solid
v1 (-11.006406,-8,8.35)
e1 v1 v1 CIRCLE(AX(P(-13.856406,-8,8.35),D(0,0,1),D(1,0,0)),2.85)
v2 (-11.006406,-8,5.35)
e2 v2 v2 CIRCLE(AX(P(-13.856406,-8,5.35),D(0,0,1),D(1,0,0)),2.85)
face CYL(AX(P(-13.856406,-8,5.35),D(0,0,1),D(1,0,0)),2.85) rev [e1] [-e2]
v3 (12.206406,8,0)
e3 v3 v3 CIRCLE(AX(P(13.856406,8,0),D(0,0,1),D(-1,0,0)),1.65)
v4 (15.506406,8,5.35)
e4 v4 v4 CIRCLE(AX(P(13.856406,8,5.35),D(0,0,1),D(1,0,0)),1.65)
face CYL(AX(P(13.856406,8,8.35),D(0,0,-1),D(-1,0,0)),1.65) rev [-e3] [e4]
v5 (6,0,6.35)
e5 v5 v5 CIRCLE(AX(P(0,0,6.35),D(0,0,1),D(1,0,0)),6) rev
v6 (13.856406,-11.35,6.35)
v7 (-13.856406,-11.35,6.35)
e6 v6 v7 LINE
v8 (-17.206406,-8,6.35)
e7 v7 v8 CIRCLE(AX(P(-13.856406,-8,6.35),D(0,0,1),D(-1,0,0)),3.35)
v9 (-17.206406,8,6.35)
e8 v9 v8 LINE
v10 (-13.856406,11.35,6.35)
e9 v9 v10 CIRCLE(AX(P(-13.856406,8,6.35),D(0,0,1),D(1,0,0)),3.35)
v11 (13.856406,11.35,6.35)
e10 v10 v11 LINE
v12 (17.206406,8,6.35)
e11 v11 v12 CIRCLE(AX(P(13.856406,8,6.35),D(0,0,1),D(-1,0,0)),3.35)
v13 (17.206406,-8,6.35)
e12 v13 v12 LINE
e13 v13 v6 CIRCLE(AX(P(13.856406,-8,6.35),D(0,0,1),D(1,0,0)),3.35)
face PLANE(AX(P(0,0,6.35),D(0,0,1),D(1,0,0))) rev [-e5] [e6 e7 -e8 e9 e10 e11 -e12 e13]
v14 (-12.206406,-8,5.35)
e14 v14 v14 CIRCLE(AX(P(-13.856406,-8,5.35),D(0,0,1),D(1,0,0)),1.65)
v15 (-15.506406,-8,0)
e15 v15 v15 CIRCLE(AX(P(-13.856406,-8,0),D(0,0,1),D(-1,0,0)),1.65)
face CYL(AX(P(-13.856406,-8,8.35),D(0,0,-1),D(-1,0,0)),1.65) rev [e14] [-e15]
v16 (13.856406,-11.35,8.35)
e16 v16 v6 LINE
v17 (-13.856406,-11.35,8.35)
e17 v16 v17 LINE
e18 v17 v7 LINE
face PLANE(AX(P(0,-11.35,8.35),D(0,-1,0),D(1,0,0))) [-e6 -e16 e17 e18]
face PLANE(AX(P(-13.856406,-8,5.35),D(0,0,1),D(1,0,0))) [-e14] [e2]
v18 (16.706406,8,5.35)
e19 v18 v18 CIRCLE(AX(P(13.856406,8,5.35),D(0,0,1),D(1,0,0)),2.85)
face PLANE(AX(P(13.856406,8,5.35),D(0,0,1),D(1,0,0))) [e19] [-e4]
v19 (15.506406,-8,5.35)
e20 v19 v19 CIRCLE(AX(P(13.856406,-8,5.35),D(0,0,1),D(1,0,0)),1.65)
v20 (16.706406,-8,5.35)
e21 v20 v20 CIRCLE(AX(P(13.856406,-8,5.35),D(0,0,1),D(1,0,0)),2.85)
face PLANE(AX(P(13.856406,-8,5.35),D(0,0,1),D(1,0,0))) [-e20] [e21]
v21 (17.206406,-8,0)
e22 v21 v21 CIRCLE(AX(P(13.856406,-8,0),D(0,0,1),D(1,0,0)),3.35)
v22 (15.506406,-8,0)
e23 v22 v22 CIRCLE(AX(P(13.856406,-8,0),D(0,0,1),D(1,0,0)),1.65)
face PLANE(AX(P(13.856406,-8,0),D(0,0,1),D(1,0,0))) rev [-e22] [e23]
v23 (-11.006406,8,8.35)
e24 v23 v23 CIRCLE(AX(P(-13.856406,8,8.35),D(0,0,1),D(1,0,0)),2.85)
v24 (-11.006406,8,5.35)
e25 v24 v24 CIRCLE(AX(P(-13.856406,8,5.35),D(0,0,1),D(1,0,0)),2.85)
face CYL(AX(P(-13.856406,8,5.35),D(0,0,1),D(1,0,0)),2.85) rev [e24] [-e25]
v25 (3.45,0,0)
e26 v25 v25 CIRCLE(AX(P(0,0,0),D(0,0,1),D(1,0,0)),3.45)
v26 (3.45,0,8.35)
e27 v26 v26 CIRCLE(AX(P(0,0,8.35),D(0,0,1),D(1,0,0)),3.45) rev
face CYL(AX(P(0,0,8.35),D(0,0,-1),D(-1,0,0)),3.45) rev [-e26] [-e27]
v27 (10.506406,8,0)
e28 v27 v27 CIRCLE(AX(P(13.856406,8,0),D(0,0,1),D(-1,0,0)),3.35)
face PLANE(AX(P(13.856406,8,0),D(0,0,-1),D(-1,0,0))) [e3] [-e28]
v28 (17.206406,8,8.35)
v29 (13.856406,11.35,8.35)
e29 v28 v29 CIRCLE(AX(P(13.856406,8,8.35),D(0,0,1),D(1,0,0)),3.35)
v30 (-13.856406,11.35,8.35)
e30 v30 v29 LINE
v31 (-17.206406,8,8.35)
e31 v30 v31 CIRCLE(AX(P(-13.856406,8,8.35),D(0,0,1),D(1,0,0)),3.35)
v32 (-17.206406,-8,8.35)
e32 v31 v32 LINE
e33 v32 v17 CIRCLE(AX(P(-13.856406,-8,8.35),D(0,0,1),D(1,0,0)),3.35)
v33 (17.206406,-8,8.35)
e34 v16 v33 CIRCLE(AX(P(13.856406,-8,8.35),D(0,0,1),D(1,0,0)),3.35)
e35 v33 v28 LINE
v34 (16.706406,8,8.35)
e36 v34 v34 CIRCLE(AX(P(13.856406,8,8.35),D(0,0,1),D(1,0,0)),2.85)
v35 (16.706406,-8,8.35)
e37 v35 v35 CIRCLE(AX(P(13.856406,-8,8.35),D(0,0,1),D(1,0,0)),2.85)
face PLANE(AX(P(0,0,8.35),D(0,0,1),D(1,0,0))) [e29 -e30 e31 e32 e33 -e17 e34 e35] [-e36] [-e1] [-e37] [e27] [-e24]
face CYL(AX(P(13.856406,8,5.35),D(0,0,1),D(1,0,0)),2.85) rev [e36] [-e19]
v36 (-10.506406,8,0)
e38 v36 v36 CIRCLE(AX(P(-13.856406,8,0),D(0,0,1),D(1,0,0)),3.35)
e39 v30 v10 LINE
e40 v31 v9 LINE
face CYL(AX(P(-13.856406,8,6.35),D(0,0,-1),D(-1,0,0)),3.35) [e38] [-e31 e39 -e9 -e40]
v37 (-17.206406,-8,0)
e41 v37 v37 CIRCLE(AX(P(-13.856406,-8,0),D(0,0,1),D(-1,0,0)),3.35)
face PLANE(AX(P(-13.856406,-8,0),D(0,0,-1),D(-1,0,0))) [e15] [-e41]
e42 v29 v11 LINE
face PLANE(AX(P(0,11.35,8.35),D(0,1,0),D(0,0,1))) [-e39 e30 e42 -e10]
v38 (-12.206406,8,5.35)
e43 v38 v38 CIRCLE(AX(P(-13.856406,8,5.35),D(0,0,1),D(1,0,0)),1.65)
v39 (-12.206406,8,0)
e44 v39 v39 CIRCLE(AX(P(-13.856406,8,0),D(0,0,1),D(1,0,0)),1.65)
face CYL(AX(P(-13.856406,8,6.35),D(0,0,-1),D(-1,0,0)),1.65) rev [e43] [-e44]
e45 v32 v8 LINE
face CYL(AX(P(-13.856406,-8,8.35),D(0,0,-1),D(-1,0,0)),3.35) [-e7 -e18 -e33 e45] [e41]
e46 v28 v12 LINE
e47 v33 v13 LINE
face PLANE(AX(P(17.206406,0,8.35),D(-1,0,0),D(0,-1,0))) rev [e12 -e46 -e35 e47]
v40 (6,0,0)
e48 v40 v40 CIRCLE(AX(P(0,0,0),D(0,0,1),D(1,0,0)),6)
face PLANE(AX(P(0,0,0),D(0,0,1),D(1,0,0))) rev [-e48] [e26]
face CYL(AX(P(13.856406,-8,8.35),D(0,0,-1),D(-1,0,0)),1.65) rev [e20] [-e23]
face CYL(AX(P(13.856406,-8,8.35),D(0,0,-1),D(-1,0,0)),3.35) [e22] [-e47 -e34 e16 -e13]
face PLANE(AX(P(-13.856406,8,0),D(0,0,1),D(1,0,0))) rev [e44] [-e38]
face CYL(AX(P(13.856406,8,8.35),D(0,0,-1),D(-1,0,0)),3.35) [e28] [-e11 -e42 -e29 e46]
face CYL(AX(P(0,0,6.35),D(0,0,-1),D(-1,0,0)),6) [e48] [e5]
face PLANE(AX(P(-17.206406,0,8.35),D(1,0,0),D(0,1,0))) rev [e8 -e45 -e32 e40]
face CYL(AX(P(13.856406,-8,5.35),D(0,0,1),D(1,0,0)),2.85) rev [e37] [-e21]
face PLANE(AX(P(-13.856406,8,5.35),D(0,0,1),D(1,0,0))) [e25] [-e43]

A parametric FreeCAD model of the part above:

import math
import FreeCAD as App
import Part
import Sketcher

V = App.Vector
Q = App.Units.Quantity

doc = App.newDocument("Part")
params = doc.addObject("Spreadsheet::Sheet", "Params")
for row, (alias, value) in enumerate([
    ("sketch1_diameter", "6.7 mm"),
    ("sketch1_diameter2", "3.3 mm"),
    ("pad1_length", "6.35 mm"),
    ("sketch2_diameter", "6.7 mm"),
    ("sketch2_diameter2", "3.3 mm"),
    ("pad2_length", "6.35 mm"),
    ("sketch3_diameter", "6.7 mm"),
    ("sketch3_diameter2", "3.3 mm"),
    ("pad3_length", "6.35 mm"),
    ("sketch4_diameter", "6.7 mm"),
    ("sketch4_diameter2", "3.3 mm"),
    ("pad4_length", "6.35 mm"),
    ("sketch5_diameter", "12 mm"),
    ("sketch5_diameter2", "6.9 mm"),
    ("pad5_length", "6.35 mm"),
    ("sketch6_diameter", "3.3 mm"),
    ("sketch6_diameter2", "6.9 mm"),
    ("sketch6_height", "16 mm"),
    ("sketch6_radius", "3.35 mm"),
    ("pad6_length", "2 mm"),
    ("sketch7_diameter", "5.7 mm"),
    ("pocket1_length", "3 mm"),
], start=1):
    params.set(f"A{row}", alias)
    params.set(f"B{row}", "=" + value)
    params.setAlias(f"B{row}", alias)

body = doc.addObject("PartDesign::Body", "Body")

# Sketch on XY plane
sketch1 = doc.addObject("Sketcher::SketchObject", "Sketch")
body.addObject(sketch1)
sketch1.AttachmentSupport = (doc.XY_Plane, [""])
sketch1.MapMode = "FlatFace"
sketch1.addGeometry([
    Part.Circle(V(-13.856406, 8, 0), V(0, 0, 1), 3.35),
    Part.Circle(V(-13.856406, 8, 0), V(0, 0, 1), 1.65),
], False)
sketch1.addConstraint([
    Sketcher.Constraint("Coincident", 1, 3, 0, 3),
    Sketcher.Constraint("Diameter", 0, Q("6.7 mm")),
    Sketcher.Constraint("Diameter", 1, Q("3.3 mm")),
    Sketcher.Constraint("DistanceY", -1, 1, 0, 3, Q("8 mm")),
    Sketcher.Constraint("DistanceX", 0, 3, -1, 1, Q("13.856406 mm")),
])
sketch1.setExpression("Constraints[1]", "Params.sketch1_diameter")
sketch1.setExpression("Constraints[2]", "Params.sketch1_diameter2")
pad1 = doc.addObject("PartDesign::Pad", "Pad")
body.addObject(pad1)
pad1.Profile = sketch1
pad1.setExpression("Length", "Params.pad1_length")
body2 = doc.addObject("PartDesign::Body", "Body001")

# Sketch on XY plane
sketch2 = doc.addObject("Sketcher::SketchObject", "Sketch001")
body2.addObject(sketch2)
sketch2.AttachmentSupport = (doc.getObject("XY_Plane001"), [""])
sketch2.MapMode = "FlatFace"
sketch2.addGeometry([
    Part.Circle(V(-13.856406, -8, 0), V(0, 0, 1), 3.35),
    Part.Circle(V(-13.856406, -8, 0), V(0, 0, 1), 1.65),
], False)
sketch2.addConstraint([
    Sketcher.Constraint("Coincident", 1, 3, 0, 3),
    Sketcher.Constraint("Diameter", 0, Q("6.7 mm")),
    Sketcher.Constraint("Diameter", 1, Q("3.3 mm")),
    Sketcher.Constraint("DistanceY", 0, 3, -1, 1, Q("8 mm")),
    Sketcher.Constraint("DistanceX", 0, 3, -1, 1, Q("13.856406 mm")),
])
sketch2.setExpression("Constraints[1]", "Params.sketch2_diameter")
sketch2.setExpression("Constraints[2]", "Params.sketch2_diameter2")
pad2 = doc.addObject("PartDesign::Pad", "Pad001")
body2.addObject(pad2)
pad2.Profile = sketch2
pad2.setExpression("Length", "Params.pad2_length")
body3 = doc.addObject("PartDesign::Body", "Body002")

# Sketch on XY plane
sketch3 = doc.addObject("Sketcher::SketchObject", "Sketch002")
body3.addObject(sketch3)
sketch3.AttachmentSupport = (doc.getObject("XY_Plane002"), [""])
sketch3.MapMode = "FlatFace"
sketch3.addGeometry([
    Part.Circle(V(13.856406, -8, 0), V(0, 0, 1), 3.35),
    Part.Circle(V(13.856406, -8, 0), V(0, 0, 1), 1.65),
], False)
sketch3.addConstraint([
    Sketcher.Constraint("Coincident", 1, 3, 0, 3),
    Sketcher.Constraint("Diameter", 0, Q("6.7 mm")),
    Sketcher.Constraint("Diameter", 1, Q("3.3 mm")),
    Sketcher.Constraint("DistanceY", 0, 3, -1, 1, Q("8 mm")),
    Sketcher.Constraint("DistanceX", -1, 1, 0, 3, Q("13.856406 mm")),
])
sketch3.setExpression("Constraints[1]", "Params.sketch3_diameter")
sketch3.setExpression("Constraints[2]", "Params.sketch3_diameter2")
pad3 = doc.addObject("PartDesign::Pad", "Pad002")
body3.addObject(pad3)
pad3.Profile = sketch3
pad3.setExpression("Length", "Params.pad3_length")
body4 = doc.addObject("PartDesign::Body", "Body003")

# Sketch on XY plane
sketch4 = doc.addObject("Sketcher::SketchObject", "Sketch003")
body4.addObject(sketch4)
sketch4.AttachmentSupport = (doc.getObject("XY_Plane003"), [""])
sketch4.MapMode = "FlatFace"
sketch4.addGeometry([
    Part.Circle(V(13.856406, 8, 0), V(0, 0, 1), 3.35),
    Part.Circle(V(13.856406, 8, 0), V(0, 0, 1), 1.65),
], False)
sketch4.addConstraint([
    Sketcher.Constraint("Coincident", 1, 3, 0, 3),
    Sketcher.Constraint("Diameter", 0, Q("6.7 mm")),
    Sketcher.Constraint("Diameter", 1, Q("3.3 mm")),
    Sketcher.Constraint("DistanceY", -1, 1, 0, 3, Q("8 mm")),
    Sketcher.Constraint("DistanceX", -1, 1, 0, 3, Q("13.856406 mm")),
])
sketch4.setExpression("Constraints[1]", "Params.sketch4_diameter")
sketch4.setExpression("Constraints[2]", "Params.sketch4_diameter2")
pad4 = doc.addObject("PartDesign::Pad", "Pad003")
body4.addObject(pad4)
pad4.Profile = sketch4
pad4.setExpression("Length", "Params.pad4_length")
body5 = doc.addObject("PartDesign::Body", "Body004")

# Sketch on XY plane
sketch5 = doc.addObject("Sketcher::SketchObject", "Sketch004")
body5.addObject(sketch5)
sketch5.AttachmentSupport = (doc.getObject("XY_Plane004"), [""])
sketch5.MapMode = "FlatFace"
sketch5.addGeometry([
    Part.Circle(V(0, 0, 0), V(0, 0, 1), 6),
    Part.Circle(V(0, 0, 0), V(0, 0, 1), 3.45),
], False)
sketch5.addConstraint([
    Sketcher.Constraint("Coincident", 0, 3, -1, 1),
    Sketcher.Constraint("Coincident", 1, 3, -1, 1),
    Sketcher.Constraint("Diameter", 0, Q("12 mm")),
    Sketcher.Constraint("Diameter", 1, Q("6.9 mm")),
])
sketch5.setExpression("Constraints[2]", "Params.sketch5_diameter")
sketch5.setExpression("Constraints[3]", "Params.sketch5_diameter2")
pad5 = doc.addObject("PartDesign::Pad", "Pad004")
body5.addObject(pad5)
pad5.Profile = sketch5
pad5.setExpression("Length", "Params.pad5_length")
body.AllowCompound = True
doc.recompute()

boolean = doc.addObject("PartDesign::Boolean", "Boolean")
body.addObject(boolean)
boolean.Type = "Fuse"
boolean.addObjects([body2])
doc.recompute()

boolean2 = doc.addObject("PartDesign::Boolean", "Boolean001")
body.addObject(boolean2)
boolean2.Type = "Fuse"
boolean2.addObjects([body3])
doc.recompute()

boolean3 = doc.addObject("PartDesign::Boolean", "Boolean002")
body.addObject(boolean3)
boolean3.Type = "Fuse"
boolean3.addObjects([body4])
doc.recompute()

boolean4 = doc.addObject("PartDesign::Boolean", "Boolean003")
body.addObject(boolean4)
boolean4.Type = "Fuse"
boolean4.addObjects([body5])

# Sketch on XY plane
sketch6 = doc.addObject("Sketcher::SketchObject", "Sketch005")
body.addObject(sketch6)
sketch6.AttachmentSupport = (doc.XY_Plane, [""])
sketch6.MapMode = "FlatFace"
sketch6.AttachmentOffset = App.Placement(V(0, 0, 6.35), App.Rotation())
sketch6.addGeometry([
    Part.LineSegment(V(13.856406, 11.35, 0), V(-13.856406, 11.35, 0)),  # 0
    Part.ArcOfCircle(Part.Circle(V(-13.856406, 8, 0), V(0, 0, 1), 3.35), math.radians(90), math.radians(180)),  # 1
    Part.LineSegment(V(-17.206406, 8, 0), V(-17.206406, -8, 0)),  # 2
    Part.ArcOfCircle(Part.Circle(V(-13.856406, -8, 0), V(0, 0, 1), 3.35), math.radians(180), math.radians(270)),  # 3
    Part.LineSegment(V(-13.856406, -11.35, 0), V(13.856406, -11.35, 0)),  # 4
    Part.ArcOfCircle(Part.Circle(V(13.856406, -8, 0), V(0, 0, 1), 3.35), math.radians(-90), math.radians(0)),  # 5
    Part.LineSegment(V(17.206406, -8, 0), V(17.206406, 8, 0)),  # 6
    Part.ArcOfCircle(Part.Circle(V(13.856406, 8, 0), V(0, 0, 1), 3.35), math.radians(0), math.radians(90)),  # 7
    Part.Circle(V(13.856406, -8, 0), V(0, 0, 1), 1.65),  # 8
    Part.Circle(V(-13.856406, -8, 0), V(0, 0, 1), 1.65),  # 9
    Part.Circle(V(13.856406, 8, 0), V(0, 0, 1), 1.65),  # 10
    Part.Circle(V(-13.856406, 8, 0), V(0, 0, 1), 1.65),  # 11
    Part.Circle(V(0, 0, 0), V(0, 0, 1), 3.45),  # 12
], False)
sketch6.addConstraint([
    Sketcher.Constraint("Tangent", 0, 2, 1, 1),
    Sketcher.Constraint("Tangent", 1, 2, 2, 1),
    Sketcher.Constraint("Tangent", 2, 2, 3, 1),
    Sketcher.Constraint("Tangent", 3, 2, 4, 1),
    Sketcher.Constraint("Tangent", 4, 2, 5, 1),
    Sketcher.Constraint("Tangent", 5, 2, 6, 1),
    Sketcher.Constraint("Tangent", 6, 2, 7, 1),
    Sketcher.Constraint("Tangent", 7, 2, 0, 1),
    Sketcher.Constraint("Horizontal", 0),
    Sketcher.Constraint("Vertical", 2),
    Sketcher.Constraint("Horizontal", 4),
    Sketcher.Constraint("Vertical", 6),
    Sketcher.Constraint("Coincident", 12, 3, -1, 1),
    Sketcher.Constraint("Coincident", 8, 3, 5, 3),
    Sketcher.Constraint("Coincident", 9, 3, 3, 3),
    Sketcher.Constraint("Coincident", 10, 3, 7, 3),
    Sketcher.Constraint("Coincident", 11, 3, 1, 3),
    Sketcher.Constraint("Equal", 1, 3),
    Sketcher.Constraint("Equal", 3, 5),
    Sketcher.Constraint("Equal", 5, 7),
    Sketcher.Constraint("Equal", 8, 9),
    Sketcher.Constraint("Equal", 9, 10),
    Sketcher.Constraint("Equal", 10, 11),
    Sketcher.Constraint("Symmetric", 1, 3, 5, 3, -1, 1),
    Sketcher.Constraint("Diameter", 8, Q("3.3 mm")),
    Sketcher.Constraint("Diameter", 12, Q("6.9 mm")),
    Sketcher.Constraint("DistanceY", 2, 2, 2, 1, Q("16 mm")),
    Sketcher.Constraint("Radius", 1, Q("3.35 mm")),
    Sketcher.Constraint("DistanceX", 0, 2, 0, 1, Q("27.712813 mm")),
])
sketch6.setExpression("Constraints[24]", "Params.sketch6_diameter")
sketch6.setExpression("Constraints[25]", "Params.sketch6_diameter2")
sketch6.setExpression("Constraints[26]", "Params.sketch6_height")
sketch6.setExpression("Constraints[27]", "Params.sketch6_radius")
pad6 = doc.addObject("PartDesign::Pad", "Pad005")
body.addObject(pad6)
pad6.Profile = sketch6
pad6.setExpression("Length", "Params.pad6_length")

# Sketch on XY plane
sketch7 = doc.addObject("Sketcher::SketchObject", "Sketch006")
body.addObject(sketch7)
sketch7.AttachmentSupport = (doc.XY_Plane, [""])
sketch7.MapMode = "FlatFace"
sketch7.AttachmentOffset = App.Placement(V(0, 0, 8.35), App.Rotation())
sketch7.addGeometry([
    Part.Circle(V(-13.856406, 8, 0), V(0, 0, 1), 2.85),
    Part.Circle(V(-13.856406, -8, 0), V(0, 0, 1), 2.85),
    Part.Circle(V(13.856406, -8, 0), V(0, 0, 1), 2.85),
    Part.Circle(V(13.856406, 8, 0), V(0, 0, 1), 2.85),
], False)
sketch7.addConstraint([
    Sketcher.Constraint("Equal", 0, 1),
    Sketcher.Constraint("Equal", 1, 2),
    Sketcher.Constraint("Equal", 2, 3),
    Sketcher.Constraint("Symmetric", 0, 3, 2, 3, -1, 1),
    Sketcher.Constraint("Symmetric", 1, 3, 3, 3, -1, 1),
    Sketcher.Constraint("Symmetric", 1, 3, 2, 3, -2),
    Sketcher.Constraint("Diameter", 0, Q("5.7 mm")),
    Sketcher.Constraint("DistanceY", -1, 1, 0, 3, Q("8 mm")),
    Sketcher.Constraint("DistanceX", 0, 3, -1, 1, Q("13.856406 mm")),
])
sketch7.setExpression("Constraints[6]", "Params.sketch7_diameter")
pocket1 = doc.addObject("PartDesign::Pocket", "Pocket")
body.addObject(pocket1)
pocket1.Profile = sketch7
pocket1.setExpression("Length", "Params.pocket1_length")

doc.recompute()
